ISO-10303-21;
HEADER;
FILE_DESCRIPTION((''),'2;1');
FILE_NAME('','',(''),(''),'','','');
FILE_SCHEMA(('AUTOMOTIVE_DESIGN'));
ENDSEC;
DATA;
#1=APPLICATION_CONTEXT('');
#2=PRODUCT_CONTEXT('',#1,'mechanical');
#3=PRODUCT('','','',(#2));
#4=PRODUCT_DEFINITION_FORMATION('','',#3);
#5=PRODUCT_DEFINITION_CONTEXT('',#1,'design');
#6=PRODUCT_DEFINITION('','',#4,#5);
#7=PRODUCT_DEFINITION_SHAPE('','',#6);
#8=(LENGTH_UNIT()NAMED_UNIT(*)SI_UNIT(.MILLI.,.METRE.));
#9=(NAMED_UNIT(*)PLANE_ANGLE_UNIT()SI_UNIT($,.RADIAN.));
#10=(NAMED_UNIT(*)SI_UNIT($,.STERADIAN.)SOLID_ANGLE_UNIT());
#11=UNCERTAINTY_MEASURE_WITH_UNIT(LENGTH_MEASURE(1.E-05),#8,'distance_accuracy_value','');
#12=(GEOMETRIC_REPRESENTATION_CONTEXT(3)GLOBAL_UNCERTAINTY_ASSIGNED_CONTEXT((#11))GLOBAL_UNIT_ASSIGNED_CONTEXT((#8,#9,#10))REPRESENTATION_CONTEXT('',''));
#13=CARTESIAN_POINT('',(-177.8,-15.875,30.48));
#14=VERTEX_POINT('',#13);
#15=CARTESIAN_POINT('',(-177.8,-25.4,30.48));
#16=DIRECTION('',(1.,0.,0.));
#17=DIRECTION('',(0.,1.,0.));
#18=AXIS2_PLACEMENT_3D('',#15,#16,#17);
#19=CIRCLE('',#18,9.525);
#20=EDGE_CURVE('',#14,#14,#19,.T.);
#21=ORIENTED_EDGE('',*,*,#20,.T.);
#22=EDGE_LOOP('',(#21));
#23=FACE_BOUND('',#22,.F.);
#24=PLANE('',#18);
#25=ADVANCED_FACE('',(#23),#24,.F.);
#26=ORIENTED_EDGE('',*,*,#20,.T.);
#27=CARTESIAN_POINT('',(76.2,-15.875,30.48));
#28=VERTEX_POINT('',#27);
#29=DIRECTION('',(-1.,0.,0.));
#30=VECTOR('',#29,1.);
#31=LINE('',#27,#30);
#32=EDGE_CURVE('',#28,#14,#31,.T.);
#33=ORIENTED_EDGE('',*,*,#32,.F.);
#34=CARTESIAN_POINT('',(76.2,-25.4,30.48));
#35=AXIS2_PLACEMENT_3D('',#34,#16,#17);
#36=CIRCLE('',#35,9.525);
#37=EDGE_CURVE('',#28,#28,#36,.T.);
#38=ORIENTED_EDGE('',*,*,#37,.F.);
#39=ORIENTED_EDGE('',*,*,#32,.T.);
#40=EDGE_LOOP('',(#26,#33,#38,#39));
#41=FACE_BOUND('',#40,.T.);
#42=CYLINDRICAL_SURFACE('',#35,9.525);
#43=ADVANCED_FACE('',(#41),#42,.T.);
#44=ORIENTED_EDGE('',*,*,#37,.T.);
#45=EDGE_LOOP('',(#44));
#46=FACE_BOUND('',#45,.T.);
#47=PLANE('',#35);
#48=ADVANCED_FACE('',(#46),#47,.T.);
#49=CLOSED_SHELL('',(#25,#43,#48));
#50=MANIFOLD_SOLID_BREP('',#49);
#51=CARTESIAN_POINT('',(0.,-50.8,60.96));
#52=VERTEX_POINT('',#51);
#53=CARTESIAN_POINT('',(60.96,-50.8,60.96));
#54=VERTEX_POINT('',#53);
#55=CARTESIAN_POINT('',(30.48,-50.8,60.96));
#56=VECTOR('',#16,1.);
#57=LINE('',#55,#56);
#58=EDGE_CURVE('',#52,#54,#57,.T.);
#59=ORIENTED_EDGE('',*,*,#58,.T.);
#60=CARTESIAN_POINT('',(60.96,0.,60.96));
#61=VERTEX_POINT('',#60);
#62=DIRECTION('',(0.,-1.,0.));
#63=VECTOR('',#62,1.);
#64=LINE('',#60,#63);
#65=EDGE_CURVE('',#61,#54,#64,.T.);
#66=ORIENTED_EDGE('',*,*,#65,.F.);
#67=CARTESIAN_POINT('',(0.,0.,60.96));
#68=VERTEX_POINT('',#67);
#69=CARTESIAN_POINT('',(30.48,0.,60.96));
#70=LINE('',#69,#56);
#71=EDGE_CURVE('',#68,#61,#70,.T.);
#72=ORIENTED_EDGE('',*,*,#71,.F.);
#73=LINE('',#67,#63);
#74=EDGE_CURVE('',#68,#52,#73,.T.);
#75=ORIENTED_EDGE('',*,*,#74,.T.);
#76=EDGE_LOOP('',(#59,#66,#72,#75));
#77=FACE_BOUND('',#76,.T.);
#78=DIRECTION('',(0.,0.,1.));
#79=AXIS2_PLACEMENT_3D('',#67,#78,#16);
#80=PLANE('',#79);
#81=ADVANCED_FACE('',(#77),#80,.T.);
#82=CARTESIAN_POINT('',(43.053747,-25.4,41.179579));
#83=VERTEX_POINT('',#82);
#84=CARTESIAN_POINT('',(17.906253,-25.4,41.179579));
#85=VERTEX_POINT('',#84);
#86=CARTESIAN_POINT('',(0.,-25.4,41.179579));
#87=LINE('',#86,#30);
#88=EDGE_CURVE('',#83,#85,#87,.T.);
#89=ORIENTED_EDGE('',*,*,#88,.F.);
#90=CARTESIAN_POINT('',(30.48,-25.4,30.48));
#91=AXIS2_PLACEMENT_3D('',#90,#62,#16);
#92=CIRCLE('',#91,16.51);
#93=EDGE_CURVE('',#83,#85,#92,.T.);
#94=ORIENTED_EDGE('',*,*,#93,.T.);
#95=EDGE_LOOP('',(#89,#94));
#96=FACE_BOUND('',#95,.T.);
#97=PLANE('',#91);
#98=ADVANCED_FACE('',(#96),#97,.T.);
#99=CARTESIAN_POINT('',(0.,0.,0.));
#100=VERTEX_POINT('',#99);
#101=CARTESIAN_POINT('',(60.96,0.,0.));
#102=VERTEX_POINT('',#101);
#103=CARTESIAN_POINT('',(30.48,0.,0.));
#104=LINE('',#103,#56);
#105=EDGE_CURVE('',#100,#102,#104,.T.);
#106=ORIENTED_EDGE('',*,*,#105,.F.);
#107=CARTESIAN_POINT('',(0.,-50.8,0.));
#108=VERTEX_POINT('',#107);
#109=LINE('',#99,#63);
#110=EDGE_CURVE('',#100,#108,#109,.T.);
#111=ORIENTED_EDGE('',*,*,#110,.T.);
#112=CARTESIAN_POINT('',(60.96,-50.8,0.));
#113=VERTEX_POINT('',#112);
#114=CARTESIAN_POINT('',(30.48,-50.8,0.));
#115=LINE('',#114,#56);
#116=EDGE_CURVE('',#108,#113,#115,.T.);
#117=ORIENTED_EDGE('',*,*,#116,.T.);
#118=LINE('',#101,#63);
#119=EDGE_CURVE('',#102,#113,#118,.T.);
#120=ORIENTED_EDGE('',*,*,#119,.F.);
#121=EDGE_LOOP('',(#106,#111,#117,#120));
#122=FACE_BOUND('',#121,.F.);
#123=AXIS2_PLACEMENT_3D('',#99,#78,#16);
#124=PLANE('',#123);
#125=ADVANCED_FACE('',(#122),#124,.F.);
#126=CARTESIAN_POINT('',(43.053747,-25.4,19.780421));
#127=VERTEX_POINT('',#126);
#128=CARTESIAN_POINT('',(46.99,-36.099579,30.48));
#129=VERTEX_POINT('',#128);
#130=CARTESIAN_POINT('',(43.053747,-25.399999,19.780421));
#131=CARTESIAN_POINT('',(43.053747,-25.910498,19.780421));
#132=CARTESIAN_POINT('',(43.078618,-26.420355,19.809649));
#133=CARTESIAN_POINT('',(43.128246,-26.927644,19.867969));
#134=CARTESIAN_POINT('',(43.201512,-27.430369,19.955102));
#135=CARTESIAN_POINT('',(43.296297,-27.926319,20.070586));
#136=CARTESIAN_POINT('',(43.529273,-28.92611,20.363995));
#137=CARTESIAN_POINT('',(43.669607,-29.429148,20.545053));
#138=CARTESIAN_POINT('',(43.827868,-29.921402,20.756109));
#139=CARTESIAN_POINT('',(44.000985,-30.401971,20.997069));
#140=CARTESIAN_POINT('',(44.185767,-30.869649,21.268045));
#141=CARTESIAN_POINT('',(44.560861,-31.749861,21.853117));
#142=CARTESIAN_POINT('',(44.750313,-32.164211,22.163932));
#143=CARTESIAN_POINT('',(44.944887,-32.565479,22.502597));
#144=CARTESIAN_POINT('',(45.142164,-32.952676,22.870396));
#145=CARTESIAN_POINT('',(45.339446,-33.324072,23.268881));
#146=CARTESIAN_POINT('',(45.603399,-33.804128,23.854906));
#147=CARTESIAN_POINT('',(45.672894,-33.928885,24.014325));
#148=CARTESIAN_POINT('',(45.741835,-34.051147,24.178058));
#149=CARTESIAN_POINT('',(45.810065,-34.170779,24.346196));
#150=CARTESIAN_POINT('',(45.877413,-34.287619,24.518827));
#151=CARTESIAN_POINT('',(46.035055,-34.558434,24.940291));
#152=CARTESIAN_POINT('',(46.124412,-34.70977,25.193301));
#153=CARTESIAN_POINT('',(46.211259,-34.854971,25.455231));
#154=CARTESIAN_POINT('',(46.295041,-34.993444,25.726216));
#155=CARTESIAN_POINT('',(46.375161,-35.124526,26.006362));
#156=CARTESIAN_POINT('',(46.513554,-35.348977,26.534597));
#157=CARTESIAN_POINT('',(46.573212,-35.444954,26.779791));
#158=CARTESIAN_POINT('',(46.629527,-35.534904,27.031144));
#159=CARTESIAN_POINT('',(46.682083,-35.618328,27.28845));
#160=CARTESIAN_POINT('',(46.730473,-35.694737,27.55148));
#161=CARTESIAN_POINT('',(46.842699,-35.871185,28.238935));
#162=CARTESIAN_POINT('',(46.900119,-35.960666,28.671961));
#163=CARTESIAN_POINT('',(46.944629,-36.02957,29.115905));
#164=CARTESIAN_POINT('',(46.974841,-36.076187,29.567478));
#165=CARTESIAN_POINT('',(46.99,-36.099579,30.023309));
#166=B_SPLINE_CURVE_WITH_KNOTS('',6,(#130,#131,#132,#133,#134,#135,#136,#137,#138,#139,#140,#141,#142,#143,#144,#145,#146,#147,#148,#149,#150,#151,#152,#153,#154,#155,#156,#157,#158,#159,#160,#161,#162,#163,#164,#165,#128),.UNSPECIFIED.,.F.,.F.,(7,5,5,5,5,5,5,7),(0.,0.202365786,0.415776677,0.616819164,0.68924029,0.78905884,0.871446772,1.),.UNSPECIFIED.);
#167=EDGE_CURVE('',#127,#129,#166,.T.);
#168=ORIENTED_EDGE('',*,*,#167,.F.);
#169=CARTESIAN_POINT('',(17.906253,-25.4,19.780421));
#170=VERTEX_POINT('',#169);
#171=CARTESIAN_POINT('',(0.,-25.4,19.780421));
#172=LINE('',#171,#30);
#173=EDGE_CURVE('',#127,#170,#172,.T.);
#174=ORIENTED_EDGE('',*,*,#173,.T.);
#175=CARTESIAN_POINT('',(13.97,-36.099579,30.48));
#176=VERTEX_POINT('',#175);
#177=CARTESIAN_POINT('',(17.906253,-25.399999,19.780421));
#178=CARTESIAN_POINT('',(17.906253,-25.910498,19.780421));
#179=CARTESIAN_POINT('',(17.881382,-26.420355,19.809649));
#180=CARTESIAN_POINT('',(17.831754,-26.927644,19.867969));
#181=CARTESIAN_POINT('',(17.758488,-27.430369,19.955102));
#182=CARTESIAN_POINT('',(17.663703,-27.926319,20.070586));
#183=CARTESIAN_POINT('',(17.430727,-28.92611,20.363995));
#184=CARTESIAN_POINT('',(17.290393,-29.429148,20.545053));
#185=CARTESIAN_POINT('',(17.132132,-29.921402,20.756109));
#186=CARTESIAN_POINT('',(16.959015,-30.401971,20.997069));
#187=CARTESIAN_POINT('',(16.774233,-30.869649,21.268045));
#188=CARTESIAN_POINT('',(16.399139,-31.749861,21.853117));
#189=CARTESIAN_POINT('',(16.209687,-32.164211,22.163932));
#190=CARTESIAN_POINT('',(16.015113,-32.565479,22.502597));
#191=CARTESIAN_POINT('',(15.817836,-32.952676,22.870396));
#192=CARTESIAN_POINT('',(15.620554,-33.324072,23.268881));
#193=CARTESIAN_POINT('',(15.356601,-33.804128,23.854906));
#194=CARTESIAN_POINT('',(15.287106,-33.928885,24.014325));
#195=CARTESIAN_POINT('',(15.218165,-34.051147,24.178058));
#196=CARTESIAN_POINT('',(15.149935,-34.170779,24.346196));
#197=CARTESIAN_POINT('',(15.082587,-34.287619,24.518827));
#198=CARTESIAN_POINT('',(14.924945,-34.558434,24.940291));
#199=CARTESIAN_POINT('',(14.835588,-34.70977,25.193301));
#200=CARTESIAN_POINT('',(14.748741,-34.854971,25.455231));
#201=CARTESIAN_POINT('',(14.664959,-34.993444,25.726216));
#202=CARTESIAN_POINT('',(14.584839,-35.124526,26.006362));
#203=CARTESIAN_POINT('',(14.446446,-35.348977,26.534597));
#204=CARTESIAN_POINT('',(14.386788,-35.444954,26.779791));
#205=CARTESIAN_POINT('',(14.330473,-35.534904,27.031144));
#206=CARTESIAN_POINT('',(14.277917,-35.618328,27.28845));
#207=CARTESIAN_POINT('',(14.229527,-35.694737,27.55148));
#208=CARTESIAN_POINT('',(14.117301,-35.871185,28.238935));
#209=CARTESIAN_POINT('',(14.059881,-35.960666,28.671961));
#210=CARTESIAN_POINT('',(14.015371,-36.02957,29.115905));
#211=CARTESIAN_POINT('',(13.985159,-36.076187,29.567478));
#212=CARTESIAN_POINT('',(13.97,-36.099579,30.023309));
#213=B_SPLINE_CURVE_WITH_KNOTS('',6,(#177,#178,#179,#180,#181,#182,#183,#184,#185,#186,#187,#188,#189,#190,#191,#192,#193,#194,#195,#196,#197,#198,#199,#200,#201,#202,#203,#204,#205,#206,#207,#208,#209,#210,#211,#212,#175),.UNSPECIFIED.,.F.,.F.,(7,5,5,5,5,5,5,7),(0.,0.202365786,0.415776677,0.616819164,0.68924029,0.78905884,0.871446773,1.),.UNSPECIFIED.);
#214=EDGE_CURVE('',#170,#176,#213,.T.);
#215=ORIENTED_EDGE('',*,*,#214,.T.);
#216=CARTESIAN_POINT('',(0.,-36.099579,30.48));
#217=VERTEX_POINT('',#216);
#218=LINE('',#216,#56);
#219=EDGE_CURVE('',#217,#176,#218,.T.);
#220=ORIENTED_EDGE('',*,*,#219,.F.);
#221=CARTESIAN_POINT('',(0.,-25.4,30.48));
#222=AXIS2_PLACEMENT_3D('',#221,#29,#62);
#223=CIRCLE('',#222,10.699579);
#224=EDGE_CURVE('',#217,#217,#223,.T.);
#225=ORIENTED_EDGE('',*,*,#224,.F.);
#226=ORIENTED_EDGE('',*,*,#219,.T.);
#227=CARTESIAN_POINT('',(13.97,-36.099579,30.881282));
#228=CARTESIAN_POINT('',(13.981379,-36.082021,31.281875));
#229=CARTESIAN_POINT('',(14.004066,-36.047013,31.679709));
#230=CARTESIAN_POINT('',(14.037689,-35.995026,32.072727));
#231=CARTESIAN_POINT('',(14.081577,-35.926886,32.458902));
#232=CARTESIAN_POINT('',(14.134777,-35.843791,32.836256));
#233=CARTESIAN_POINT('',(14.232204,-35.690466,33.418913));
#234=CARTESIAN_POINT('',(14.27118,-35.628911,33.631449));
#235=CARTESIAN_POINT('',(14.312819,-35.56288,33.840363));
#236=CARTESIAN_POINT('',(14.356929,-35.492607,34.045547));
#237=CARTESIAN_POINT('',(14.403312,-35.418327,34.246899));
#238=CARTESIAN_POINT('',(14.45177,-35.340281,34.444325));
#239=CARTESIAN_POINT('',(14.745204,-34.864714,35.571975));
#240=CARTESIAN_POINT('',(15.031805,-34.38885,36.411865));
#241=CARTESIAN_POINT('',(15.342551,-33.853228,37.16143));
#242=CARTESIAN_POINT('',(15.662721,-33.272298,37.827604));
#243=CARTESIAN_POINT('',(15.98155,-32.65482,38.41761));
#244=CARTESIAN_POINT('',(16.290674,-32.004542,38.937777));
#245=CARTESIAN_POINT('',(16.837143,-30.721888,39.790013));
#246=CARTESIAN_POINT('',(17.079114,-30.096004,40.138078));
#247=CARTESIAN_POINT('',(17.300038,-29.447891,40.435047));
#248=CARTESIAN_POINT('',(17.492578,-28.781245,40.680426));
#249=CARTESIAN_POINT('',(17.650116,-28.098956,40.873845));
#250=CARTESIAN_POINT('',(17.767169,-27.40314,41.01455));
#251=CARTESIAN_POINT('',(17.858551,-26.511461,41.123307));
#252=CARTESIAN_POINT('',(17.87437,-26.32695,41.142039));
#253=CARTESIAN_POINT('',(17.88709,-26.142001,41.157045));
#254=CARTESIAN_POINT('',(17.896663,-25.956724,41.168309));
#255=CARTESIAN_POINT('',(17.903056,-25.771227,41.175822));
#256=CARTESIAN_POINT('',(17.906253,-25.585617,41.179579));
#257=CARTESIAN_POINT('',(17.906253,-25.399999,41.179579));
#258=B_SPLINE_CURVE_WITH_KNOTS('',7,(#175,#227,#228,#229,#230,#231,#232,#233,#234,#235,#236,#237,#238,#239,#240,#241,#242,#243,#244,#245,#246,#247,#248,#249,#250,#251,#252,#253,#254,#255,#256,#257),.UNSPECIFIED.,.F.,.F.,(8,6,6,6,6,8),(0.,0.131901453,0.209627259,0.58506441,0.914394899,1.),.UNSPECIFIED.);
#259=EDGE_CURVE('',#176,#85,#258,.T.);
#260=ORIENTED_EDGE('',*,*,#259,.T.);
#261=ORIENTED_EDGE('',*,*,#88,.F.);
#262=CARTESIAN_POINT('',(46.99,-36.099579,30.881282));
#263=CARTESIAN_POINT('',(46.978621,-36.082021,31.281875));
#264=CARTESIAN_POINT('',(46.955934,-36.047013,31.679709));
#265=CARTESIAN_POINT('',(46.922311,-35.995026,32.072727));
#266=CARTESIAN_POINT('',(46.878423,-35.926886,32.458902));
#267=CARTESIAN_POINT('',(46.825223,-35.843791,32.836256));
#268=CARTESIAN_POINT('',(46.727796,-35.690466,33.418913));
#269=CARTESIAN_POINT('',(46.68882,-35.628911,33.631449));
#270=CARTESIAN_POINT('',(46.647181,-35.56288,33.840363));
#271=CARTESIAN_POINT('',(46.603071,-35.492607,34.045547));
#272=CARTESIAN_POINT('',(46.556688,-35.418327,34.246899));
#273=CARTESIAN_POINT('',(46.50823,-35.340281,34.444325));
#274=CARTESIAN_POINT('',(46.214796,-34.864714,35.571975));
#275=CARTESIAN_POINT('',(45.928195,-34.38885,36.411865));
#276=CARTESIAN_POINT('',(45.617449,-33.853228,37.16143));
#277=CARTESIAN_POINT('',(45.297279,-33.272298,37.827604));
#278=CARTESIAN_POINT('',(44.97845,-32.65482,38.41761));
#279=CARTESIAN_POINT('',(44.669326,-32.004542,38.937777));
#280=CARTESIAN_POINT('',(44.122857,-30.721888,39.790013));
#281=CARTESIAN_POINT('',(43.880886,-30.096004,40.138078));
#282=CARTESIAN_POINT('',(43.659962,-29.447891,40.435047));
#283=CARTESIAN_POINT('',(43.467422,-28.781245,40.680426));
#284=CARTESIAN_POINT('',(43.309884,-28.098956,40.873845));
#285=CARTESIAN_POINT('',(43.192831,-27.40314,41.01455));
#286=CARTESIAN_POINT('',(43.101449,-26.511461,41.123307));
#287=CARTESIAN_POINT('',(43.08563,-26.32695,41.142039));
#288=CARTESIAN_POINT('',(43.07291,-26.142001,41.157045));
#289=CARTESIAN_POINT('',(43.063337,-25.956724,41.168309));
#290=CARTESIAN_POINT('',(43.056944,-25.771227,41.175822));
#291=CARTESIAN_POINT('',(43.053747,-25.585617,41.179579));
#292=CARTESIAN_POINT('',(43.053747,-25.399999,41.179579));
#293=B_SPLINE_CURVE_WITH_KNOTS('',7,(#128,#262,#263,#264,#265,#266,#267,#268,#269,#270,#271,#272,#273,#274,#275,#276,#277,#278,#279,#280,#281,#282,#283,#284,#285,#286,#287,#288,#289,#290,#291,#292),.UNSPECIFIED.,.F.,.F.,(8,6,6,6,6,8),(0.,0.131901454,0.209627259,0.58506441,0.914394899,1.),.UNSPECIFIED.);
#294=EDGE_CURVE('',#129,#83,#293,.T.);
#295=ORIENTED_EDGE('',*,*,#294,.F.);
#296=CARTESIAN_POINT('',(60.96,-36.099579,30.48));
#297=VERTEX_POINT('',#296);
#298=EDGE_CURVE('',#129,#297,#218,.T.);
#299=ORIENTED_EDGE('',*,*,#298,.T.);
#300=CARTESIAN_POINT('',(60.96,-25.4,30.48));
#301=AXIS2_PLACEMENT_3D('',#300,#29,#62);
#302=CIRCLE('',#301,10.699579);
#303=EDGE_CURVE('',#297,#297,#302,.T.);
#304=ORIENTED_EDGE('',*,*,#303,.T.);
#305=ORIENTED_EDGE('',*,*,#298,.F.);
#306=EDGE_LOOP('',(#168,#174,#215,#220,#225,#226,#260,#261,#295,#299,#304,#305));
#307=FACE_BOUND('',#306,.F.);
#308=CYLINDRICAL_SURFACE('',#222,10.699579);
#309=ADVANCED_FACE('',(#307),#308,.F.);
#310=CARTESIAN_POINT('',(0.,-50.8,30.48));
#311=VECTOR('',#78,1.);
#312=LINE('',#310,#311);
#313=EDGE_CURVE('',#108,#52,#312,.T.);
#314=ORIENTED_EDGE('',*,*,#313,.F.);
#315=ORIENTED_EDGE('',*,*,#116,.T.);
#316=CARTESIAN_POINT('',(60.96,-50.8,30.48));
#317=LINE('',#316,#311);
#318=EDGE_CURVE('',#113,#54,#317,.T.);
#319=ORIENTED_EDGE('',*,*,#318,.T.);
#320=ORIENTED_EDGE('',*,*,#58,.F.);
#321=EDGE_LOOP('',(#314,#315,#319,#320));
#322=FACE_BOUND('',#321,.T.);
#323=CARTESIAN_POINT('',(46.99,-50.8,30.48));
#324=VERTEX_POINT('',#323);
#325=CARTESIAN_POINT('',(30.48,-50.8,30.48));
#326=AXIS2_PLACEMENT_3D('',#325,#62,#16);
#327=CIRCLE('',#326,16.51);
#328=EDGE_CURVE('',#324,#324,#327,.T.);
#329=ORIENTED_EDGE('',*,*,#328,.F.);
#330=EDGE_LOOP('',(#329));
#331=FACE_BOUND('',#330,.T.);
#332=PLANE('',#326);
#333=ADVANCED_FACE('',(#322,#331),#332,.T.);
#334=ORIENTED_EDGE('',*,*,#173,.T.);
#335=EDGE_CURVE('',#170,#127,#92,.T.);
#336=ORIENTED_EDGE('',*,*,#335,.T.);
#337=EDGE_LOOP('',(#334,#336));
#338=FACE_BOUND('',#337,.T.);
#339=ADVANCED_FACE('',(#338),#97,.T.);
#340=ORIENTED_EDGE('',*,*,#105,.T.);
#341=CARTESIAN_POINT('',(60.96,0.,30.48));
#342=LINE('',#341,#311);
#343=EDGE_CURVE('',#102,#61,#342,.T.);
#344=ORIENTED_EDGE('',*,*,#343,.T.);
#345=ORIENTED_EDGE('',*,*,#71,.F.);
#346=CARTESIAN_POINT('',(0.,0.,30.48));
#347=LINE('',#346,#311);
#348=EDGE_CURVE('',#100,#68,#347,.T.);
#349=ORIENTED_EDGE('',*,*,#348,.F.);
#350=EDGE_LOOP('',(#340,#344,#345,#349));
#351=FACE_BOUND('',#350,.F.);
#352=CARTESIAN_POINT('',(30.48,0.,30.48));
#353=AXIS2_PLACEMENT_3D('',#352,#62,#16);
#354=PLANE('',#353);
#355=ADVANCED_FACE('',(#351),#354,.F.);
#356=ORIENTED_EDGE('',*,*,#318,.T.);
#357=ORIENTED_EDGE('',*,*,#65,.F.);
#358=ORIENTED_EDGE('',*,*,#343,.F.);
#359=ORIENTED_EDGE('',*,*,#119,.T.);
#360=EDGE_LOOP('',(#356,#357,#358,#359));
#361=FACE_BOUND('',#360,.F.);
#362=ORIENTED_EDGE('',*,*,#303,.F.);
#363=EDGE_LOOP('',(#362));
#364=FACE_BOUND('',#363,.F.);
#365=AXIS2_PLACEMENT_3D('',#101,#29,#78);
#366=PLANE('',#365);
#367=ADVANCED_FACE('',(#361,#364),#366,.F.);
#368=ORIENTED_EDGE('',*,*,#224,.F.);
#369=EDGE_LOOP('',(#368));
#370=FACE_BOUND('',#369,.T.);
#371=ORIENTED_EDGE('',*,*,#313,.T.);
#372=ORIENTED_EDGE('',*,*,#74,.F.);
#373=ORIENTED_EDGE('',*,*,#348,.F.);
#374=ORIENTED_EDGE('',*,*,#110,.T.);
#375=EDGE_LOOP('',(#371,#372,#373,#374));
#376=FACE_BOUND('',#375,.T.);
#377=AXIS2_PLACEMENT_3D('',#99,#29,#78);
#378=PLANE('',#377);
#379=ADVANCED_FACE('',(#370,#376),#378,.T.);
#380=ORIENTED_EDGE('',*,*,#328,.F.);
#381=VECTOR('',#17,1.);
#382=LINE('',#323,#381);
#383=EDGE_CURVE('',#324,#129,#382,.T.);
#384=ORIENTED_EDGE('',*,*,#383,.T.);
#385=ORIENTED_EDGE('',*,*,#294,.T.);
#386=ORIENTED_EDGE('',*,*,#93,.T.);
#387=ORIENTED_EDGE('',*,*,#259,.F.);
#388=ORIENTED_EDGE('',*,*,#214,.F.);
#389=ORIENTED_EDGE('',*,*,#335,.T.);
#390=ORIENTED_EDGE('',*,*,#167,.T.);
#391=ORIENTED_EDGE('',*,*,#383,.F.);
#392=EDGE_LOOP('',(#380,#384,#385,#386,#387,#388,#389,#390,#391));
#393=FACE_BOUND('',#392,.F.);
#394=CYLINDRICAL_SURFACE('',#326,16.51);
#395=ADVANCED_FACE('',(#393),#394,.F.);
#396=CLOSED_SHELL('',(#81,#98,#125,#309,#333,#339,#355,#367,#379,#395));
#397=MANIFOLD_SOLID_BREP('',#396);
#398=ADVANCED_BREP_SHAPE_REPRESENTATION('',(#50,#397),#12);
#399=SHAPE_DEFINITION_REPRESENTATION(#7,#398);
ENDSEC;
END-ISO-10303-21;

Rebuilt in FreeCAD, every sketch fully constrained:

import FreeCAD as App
import Part
import Sketcher
Q = App.Units.Quantity


def add_polygon(sketch, points):
    """Adds a closed chain of lines whose ends are joined by coincident constraints."""
    first, n = sketch.GeometryCount, len(points)
    for a, b in zip(points, points[1:] + points[:1]):
        sketch.addGeometry(Part.LineSegment(App.Vector(*a, 0), App.Vector(*b, 0)), False)
    for i in range(n):
        sketch.addConstraint(Sketcher.Constraint("Coincident", first + i, 2, first + (i + 1) % n, 1))

doc = App.newDocument("Part")
params = doc.addObject("Spreadsheet::Sheet", "Params")
for row, (alias, value) in enumerate([
    ("sketch1_width", "2.4 in"),
    ("pad1_length", "2 in"),
    ("sketch2_diameter", "1.3 in"),
    ("pocket1_length", "1 in"),
    ("pocket2_length", "2.4 in"),
    ("sketch4_diameter", "0.75 in"),
    ("pad2_length", "10 in"),
], start=1):
    params.set(f"A{row}", alias)
    params.set(f"B{row}", "=" + value)
    params.setAlias(f"B{row}", alias)

body = doc.addObject("PartDesign::Body", "Body")

# Sketch on XZ plane
sketch1 = body.newObject("Sketcher::SketchObject", "Sketch")
sketch1.AttachmentSupport = (doc.getObject("XZ_Plane"), [""])
sketch1.MapMode = "FlatFace"
add_polygon(sketch1, [(0, 61), (0, 0), (61, 0), (61, 61)])  # lines 0-3
sketch1.addConstraint(Sketcher.Constraint("Vertical", 0))
sketch1.addConstraint(Sketcher.Constraint("Horizontal", 1))
sketch1.addConstraint(Sketcher.Constraint("Vertical", 2))
sketch1.addConstraint(Sketcher.Constraint("Horizontal", 3))
sketch1.addConstraint(Sketcher.Constraint("Coincident", 0, 2, -1, 1))
sketch1.addConstraint(Sketcher.Constraint("Equal", 3, 0))
sketch1.addConstraint(Sketcher.Constraint("DistanceX", 1, 1, 1, 2, Q("2.4 in")))
sketch1.setExpression("Constraints[10]", "Params.sketch1_width")
pad1 = body.newObject("PartDesign::Pad", "Pad")
pad1.Profile = sketch1
pad1.setExpression("Length", "Params.pad1_length")

# Sketch on XZ plane
sketch2 = body.newObject("Sketcher::SketchObject", "Sketch001")
sketch2.AttachmentSupport = (doc.getObject("XZ_Plane"), [""])
sketch2.MapMode = "FlatFace"
sketch2.AttachmentOffset = App.Placement(App.Vector(0, 0, 2 * 25.4), App.Rotation())
sketch2.addGeometry(Part.Circle(App.Vector(30, 30, 0), App.Vector(0, 0, 1), 17), False)
sketch2.addConstraint(Sketcher.Constraint("Diameter", 0, Q("1.3 in")))
sketch2.addConstraint(Sketcher.Constraint("DistanceX", -1, 1, 0, 3, Q("1.2 in")))
sketch2.addConstraint(Sketcher.Constraint("DistanceY", -1, 1, 0, 3, Q("1.2 in")))
sketch2.setExpression("Constraints[0]", "Params.sketch2_diameter")
pocket1 = body.newObject("PartDesign::Pocket", "Pocket")
pocket1.Profile = sketch2
pocket1.setExpression("Length", "Params.pocket1_length")

# Sketch on YZ plane
sketch3 = body.newObject("Sketcher::SketchObject", "Sketch002")
sketch3.AttachmentSupport = (doc.getObject("YZ_Plane"), [""])
sketch3.MapMode = "FlatFace"
sketch3.addGeometry(Part.Circle(App.Vector(-25, 30, 0), App.Vector(0, 0, 1), 11), False)
sketch3.addConstraint(Sketcher.Constraint("DistanceX", 0, 3, -1, 1, Q("1 in")))
sketch3.addConstraint(Sketcher.Constraint("DistanceY", -1, 1, 0, 3, Q("1.2 in")))
sketch3.addConstraint(Sketcher.Constraint("Diameter", 0, 21.399158))
pocket2 = body.newObject("PartDesign::Pocket", "Pocket001")
pocket2.Profile = sketch3
pocket2.setExpression("Length", "Params.pocket2_length")
pocket2.Reversed = True
body2 = doc.addObject("PartDesign::Body", "Body001")

# Sketch on YZ plane
sketch4 = body2.newObject("Sketcher::SketchObject", "Sketch003")
sketch4.AttachmentSupport = (doc.getObject("YZ_Plane001"), [""])
sketch4.MapMode = "FlatFace"
sketch4.AttachmentOffset = App.Placement(App.Vector(0, 0, 3 * 25.4), App.Rotation())
sketch4.addGeometry(Part.Circle(App.Vector(-25, 30, 0), App.Vector(0, 0, 1), 10), False)
sketch4.addConstraint(Sketcher.Constraint("Diameter", 0, Q("0.75 in")))
sketch4.addConstraint(Sketcher.Constraint("DistanceX", 0, 3, -1, 1, Q("1 in")))
sketch4.addConstraint(Sketcher.Constraint("DistanceY", -1, 1, 0, 3, Q("1.2 in")))
sketch4.setExpression("Constraints[0]", "Params.sketch4_diameter")
pad2 = body2.newObject("PartDesign::Pad", "Pad001")
pad2.Profile = sketch4
pad2.setExpression("Length", "Params.pad2_length")
pad2.Reversed = True

doc.recompute()
